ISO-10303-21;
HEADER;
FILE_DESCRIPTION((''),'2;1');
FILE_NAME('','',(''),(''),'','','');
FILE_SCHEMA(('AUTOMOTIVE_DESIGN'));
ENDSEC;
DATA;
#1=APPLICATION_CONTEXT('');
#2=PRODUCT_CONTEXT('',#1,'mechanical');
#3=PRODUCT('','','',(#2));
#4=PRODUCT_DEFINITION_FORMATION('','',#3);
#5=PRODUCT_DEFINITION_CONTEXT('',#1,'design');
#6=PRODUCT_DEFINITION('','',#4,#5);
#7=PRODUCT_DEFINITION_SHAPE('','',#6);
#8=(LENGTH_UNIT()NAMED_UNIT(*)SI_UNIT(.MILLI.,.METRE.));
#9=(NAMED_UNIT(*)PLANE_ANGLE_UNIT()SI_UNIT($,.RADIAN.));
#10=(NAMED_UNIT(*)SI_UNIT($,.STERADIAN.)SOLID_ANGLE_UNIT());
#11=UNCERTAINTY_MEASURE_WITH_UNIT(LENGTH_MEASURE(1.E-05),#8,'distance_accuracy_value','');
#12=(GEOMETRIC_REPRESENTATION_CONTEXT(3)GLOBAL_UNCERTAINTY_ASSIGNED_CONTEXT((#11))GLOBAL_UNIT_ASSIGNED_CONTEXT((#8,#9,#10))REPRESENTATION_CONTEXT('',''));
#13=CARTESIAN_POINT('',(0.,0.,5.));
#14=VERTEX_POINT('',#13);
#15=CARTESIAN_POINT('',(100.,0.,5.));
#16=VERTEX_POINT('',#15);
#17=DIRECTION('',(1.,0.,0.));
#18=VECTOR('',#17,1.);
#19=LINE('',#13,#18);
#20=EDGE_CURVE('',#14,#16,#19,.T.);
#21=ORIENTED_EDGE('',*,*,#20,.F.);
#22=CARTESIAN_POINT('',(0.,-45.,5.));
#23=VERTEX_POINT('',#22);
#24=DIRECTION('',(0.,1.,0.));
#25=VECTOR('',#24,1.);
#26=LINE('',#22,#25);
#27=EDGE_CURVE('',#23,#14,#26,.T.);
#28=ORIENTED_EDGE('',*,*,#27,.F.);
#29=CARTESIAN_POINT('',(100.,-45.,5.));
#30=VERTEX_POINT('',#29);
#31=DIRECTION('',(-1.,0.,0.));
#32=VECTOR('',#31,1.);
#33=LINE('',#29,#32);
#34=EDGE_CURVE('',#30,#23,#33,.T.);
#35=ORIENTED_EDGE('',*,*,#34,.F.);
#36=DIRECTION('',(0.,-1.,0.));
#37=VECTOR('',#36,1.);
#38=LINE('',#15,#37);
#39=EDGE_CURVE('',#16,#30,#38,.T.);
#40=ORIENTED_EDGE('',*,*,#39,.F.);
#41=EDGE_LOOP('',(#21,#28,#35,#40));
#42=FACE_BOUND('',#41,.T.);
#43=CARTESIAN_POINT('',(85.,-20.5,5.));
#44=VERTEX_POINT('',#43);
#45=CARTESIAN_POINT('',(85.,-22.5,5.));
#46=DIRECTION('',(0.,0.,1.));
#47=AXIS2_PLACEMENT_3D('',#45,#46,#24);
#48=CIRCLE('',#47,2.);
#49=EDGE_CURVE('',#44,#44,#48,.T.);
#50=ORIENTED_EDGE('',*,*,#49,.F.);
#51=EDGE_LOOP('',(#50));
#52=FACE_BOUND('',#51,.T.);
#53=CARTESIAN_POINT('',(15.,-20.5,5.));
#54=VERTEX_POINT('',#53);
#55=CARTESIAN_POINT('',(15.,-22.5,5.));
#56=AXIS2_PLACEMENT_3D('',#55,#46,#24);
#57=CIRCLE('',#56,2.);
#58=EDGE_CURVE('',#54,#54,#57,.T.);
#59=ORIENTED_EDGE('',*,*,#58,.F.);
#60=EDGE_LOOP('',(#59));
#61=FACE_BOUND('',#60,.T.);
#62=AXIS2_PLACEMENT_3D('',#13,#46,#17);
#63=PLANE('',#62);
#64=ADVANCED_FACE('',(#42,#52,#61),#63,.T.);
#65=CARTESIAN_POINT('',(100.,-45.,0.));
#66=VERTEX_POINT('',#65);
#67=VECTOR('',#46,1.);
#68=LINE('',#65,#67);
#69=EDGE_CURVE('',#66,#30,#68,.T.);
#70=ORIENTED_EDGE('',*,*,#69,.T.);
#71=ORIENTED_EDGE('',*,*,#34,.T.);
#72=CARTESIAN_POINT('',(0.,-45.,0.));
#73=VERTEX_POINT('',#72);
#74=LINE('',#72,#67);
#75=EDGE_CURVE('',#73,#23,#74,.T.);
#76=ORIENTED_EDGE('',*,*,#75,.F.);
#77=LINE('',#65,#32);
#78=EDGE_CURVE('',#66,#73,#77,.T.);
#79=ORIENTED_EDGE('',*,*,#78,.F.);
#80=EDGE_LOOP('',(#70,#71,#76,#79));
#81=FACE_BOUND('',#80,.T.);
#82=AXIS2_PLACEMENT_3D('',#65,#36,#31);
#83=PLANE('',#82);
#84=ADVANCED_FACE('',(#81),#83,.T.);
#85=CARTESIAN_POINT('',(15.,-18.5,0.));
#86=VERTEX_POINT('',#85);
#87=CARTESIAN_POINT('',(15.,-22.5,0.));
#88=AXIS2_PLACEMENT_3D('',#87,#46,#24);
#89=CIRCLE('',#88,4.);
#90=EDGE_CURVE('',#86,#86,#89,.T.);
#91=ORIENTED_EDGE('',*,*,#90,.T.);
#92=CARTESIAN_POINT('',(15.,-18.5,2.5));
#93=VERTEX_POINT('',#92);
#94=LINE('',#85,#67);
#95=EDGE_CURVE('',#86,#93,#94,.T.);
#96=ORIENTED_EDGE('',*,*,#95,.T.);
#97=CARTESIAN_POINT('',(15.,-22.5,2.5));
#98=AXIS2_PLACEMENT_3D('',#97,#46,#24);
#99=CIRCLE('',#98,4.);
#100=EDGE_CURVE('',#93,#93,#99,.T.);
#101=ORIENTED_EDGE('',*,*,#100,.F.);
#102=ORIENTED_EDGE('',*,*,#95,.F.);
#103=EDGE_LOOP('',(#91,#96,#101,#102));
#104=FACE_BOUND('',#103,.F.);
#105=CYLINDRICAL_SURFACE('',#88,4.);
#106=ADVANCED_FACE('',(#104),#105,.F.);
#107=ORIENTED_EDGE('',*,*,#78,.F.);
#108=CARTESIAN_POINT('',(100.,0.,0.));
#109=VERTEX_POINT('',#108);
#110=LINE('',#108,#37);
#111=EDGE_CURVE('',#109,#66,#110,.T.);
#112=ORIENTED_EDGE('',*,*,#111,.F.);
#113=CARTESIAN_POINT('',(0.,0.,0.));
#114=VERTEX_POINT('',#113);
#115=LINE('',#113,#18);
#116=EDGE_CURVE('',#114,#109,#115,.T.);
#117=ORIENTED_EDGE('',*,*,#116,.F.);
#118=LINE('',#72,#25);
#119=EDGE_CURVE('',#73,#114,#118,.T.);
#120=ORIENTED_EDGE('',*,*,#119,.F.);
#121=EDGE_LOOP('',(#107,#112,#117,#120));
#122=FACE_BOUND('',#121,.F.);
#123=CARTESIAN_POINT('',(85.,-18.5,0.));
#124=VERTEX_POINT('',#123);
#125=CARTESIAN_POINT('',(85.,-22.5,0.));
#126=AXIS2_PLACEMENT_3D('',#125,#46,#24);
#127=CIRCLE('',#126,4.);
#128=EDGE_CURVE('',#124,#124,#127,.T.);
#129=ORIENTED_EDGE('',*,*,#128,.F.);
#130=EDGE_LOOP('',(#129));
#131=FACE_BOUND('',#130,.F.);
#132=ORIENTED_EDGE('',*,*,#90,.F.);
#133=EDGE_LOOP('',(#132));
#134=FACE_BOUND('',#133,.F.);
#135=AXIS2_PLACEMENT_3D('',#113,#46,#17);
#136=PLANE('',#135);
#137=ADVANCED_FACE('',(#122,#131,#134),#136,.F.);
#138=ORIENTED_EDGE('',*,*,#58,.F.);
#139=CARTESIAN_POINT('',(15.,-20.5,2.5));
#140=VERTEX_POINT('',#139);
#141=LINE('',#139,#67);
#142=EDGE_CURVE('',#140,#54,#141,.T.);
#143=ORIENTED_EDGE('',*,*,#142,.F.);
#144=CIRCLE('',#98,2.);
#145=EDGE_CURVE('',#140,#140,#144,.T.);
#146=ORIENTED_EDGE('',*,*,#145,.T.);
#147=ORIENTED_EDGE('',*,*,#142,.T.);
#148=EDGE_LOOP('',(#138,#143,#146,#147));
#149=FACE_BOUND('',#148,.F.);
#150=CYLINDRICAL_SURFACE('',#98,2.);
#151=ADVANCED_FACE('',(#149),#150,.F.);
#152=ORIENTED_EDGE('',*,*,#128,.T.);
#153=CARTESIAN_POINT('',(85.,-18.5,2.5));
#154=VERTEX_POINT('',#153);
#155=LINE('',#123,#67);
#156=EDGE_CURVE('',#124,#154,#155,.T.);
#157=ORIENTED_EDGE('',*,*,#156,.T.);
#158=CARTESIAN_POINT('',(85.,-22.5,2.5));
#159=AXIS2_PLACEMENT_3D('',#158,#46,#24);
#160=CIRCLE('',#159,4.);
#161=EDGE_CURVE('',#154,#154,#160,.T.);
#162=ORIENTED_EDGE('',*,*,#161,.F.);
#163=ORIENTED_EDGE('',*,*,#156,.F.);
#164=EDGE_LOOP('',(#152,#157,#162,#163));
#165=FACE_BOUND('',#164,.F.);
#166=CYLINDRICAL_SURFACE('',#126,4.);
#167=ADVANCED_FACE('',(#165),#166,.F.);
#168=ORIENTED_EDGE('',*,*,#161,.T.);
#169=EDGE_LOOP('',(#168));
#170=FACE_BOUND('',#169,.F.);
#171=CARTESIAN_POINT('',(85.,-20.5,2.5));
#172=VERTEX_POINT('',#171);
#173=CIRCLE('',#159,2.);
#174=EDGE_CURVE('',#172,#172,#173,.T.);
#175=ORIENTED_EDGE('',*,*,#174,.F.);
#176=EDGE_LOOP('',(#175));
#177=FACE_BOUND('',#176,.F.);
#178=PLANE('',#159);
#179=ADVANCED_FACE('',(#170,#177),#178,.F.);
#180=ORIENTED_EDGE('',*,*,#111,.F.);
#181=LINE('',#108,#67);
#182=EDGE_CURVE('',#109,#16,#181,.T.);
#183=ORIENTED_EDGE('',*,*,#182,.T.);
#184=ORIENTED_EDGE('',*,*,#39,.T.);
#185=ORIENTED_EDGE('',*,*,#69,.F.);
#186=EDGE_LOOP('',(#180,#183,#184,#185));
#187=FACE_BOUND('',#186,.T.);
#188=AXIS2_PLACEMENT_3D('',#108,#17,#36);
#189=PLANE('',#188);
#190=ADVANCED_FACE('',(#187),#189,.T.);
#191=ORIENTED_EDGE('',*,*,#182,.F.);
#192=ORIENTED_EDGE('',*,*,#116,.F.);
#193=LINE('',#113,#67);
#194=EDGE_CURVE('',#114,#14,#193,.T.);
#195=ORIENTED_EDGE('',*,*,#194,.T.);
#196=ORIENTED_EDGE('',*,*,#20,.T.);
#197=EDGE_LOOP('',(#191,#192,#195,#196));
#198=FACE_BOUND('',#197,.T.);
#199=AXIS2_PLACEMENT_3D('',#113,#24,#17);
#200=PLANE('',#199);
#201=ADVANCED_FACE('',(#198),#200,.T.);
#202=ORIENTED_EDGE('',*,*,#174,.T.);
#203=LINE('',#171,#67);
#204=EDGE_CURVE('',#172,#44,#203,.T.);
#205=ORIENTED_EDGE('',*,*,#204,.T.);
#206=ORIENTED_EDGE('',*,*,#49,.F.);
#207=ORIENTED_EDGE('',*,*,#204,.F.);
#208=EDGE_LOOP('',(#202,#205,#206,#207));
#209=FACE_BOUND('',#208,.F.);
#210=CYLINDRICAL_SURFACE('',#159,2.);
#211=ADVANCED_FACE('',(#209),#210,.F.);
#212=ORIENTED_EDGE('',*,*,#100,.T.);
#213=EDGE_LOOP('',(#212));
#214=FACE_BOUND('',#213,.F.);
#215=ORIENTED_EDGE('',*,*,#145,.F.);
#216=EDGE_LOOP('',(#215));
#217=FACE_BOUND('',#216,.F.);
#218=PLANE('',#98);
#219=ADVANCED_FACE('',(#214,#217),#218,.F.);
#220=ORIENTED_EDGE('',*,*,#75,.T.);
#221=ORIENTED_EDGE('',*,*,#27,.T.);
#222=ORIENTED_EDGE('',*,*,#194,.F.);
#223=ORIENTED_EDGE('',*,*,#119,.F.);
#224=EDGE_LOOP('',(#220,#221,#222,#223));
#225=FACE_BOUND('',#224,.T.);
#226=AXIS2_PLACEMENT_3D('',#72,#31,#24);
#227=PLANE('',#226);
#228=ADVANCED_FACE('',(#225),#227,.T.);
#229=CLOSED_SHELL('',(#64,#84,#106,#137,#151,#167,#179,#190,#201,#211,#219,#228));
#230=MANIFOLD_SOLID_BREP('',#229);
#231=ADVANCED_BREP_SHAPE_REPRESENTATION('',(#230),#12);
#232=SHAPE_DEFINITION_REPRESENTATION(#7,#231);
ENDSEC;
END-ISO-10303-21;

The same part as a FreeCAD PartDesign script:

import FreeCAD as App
import Part
import Sketcher
from FreeCAD import Vector
Q = App.Units.Quantity

doc = App.newDocument("Part")
body = doc.addObject("PartDesign::Body", "Body")

# Sketch on XY plane
sketch1 = doc.addObject("Sketcher::SketchObject", "Sketch")
body.addObject(sketch1)
sketch1.AttachmentSupport = (doc.XY_Plane, [""])
sketch1.MapMode = "FlatFace"
sketch1.addGeometry([
    Part.LineSegment(Vector(100, 0, 0), Vector(0, 0, 0)),
    Part.LineSegment(Vector(0, 0, 0), Vector(0, -45, 0)),
    Part.LineSegment(Vector(0, -45, 0), Vector(100, -45, 0)),
    Part.LineSegment(Vector(100, -45, 0), Vector(100, 0, 0)),
], False)
sketch1.addConstraint([
    Sketcher.Constraint("Coincident", 0, 2, 1, 1),
    Sketcher.Constraint("Coincident", 1, 2, 2, 1),
    Sketcher.Constraint("Coincident", 2, 2, 3, 1),
    Sketcher.Constraint("Coincident", 3, 2, 0, 1),
    Sketcher.Constraint("Horizontal", 0),
    Sketcher.Constraint("Vertical", 1),
    Sketcher.Constraint("Horizontal", 2),
    Sketcher.Constraint("Vertical", 3),
    Sketcher.Constraint("Coincident", 0, 2, -1, 1),
    Sketcher.Constraint("DistanceX", 0, 2, 0, 1, Q("100 mm")),
    Sketcher.Constraint("DistanceY", 1, 2, 1, 1, Q("45 mm")),
])
pad1 = doc.addObject("PartDesign::Pad", "Pad")
body.addObject(pad1)
pad1.Profile = sketch1
pad1.Length = 5

# Sketch on XY plane
sketch2 = doc.addObject("Sketcher::SketchObject", "Sketch001")
body.addObject(sketch2)
sketch2.AttachmentSupport = (doc.XY_Plane, [""])
sketch2.MapMode = "FlatFace"
sketch2.addGeometry([
    Part.Circle(Vector(15, -22.5, 0), Vector(0, 0, 1), 2),
    Part.Circle(Vector(85, -22.5, 0), Vector(0, 0, 1), 2),
], False)
sketch2.addConstraint([
    Sketcher.Constraint("Equal", 0, 1),
    Sketcher.Constraint("Horizontal", 0, 3, 1, 3),
    Sketcher.Constraint("Diameter", 0, Q("4 mm")),
    Sketcher.Constraint("DistanceX", -1, 1, 0, 3, Q("15 mm")),
    Sketcher.Constraint("DistanceX", -1, 1, 1, 3, Q("85 mm")),
    Sketcher.Constraint("DistanceY", 0, 3, -1, 1, Q("22.5 mm")),
])
doc.recompute()
hole = doc.addObject("PartDesign::Hole", "Hole")
body.addObject(hole)
hole.Profile = sketch2
hole.ThreadType = "None"
hole.Diameter = 4
hole.DepthType = "Dimension"
hole.Depth = 5
hole.DrillPoint = "Angled"
hole.DrillPointAngle = 118
hole.HoleCutType = "Counterbore"
hole.HoleCutDiameter = 8
hole.HoleCutDepth = 2.5
hole.Reversed = True

doc.recompute()
